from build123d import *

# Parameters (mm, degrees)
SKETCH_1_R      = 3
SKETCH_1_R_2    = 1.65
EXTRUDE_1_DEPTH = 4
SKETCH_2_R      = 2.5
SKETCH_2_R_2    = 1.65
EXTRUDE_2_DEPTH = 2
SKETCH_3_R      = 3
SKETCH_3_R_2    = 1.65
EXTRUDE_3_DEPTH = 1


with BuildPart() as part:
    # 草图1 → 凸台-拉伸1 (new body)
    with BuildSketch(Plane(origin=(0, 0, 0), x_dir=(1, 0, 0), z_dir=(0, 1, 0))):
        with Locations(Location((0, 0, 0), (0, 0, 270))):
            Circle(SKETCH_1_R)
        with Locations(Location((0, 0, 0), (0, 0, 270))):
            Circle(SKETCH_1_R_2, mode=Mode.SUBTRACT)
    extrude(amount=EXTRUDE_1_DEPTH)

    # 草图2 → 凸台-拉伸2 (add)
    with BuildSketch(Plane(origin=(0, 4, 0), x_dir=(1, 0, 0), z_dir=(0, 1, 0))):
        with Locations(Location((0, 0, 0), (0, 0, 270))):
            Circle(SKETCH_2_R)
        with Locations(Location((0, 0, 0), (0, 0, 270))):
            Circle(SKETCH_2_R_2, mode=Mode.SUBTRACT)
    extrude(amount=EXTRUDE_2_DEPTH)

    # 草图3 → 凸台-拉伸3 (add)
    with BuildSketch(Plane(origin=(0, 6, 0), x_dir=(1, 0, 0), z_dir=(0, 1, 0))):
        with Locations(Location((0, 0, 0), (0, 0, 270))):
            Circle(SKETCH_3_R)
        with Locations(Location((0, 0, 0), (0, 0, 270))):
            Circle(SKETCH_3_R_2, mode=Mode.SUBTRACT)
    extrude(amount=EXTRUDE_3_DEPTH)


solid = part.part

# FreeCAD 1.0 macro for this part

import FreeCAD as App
import Part
import Sketcher
from FreeCAD import Vector

doc = App.newDocument("Part")
body = doc.addObject("PartDesign::Body", "Body")

# Sketch on XZ plane
sketch1 = body.newObject("Sketcher::SketchObject", "Sketch")
sketch1.AttachmentSupport = (doc.getObject("XZ_Plane"), [""])
sketch1.MapMode = "FlatFace"
sketch1.addGeometry(Part.Circle(Vector(0, 0, 0), Vector(0, 0, 1), 3), False)
sketch1.addGeometry(Part.Circle(Vector(0, 0, 0), Vector(0, 0, 1), 1.6), False)
sketch1.addConstraint(Sketcher.Constraint("Coincident", 0, 3, -1, 1))
sketch1.addConstraint(Sketcher.Constraint("Coincident", 1, 3, -1, 1))
sketch1.addConstraint(Sketcher.Constraint("Diameter", 0, 6.0))
sketch1.addConstraint(Sketcher.Constraint("Diameter", 1, 3.3))
pad1 = body.newObject("PartDesign::Pad", "Pad")
pad1.Profile = sketch1
pad1.Length = 4
pad1.Reversed = True

# Sketch on XZ plane
sketch2 = body.newObject("Sketcher::SketchObject", "Sketch001")
sketch2.AttachmentSupport = (doc.getObject("XZ_Plane"), [""])
sketch2.MapMode = "FlatFace"
sketch2.AttachmentOffset = App.Placement(Vector(0, 0, -4), App.Rotation())
sketch2.addGeometry(Part.Circle(Vector(0, 0, 0), Vector(0, 0, 1), 2.5), False)
sketch2.addGeometry(Part.Circle(Vector(0, 0, 0), Vector(0, 0, 1), 1.6), False)
sketch2.addConstraint(Sketcher.Constraint("Coincident", 0, 3, -1, 1))
sketch2.addConstraint(Sketcher.Constraint("Coincident", 1, 3, -1, 1))
sketch2.addConstraint(Sketcher.Constraint("Diameter", 0, 5.0))
sketch2.addConstraint(Sketcher.Constraint("Diameter", 1, 3.3))
pad2 = body.newObject("PartDesign::Pad", "Pad001")
pad2.Profile = sketch2
pad2.Length = 2
pad2.Reversed = True

# Sketch on XZ plane
sketch3 = body.newObject("Sketcher::SketchObject", "Sketch002")
sketch3.AttachmentSupport = (doc.getObject("XZ_Plane"), [""])
sketch3.MapMode = "FlatFace"
sketch3.AttachmentOffset = App.Placement(Vector(0, 0, -6), App.Rotation())
sketch3.addGeometry(Part.Circle(Vector(0, 0, 0), Vector(0, 0, 1), 3), False)
sketch3.addGeometry(Part.Circle(Vector(0, 0, 0), Vector(0, 0, 1), 1.6), False)
sketch3.addConstraint(Sketcher.Constraint("Coincident", 0, 3, -1, 1))
sketch3.addConstraint(Sketcher.Constraint("Coincident", 1, 3, -1, 1))
sketch3.addConstraint(Sketcher.Constraint("Diameter", 0, 6.0))
sketch3.addConstraint(Sketcher.Constraint("Diameter", 1, 3.3))
pad3 = body.newObject("PartDesign::Pad", "Pad002")
pad3.Profile = sketch3
pad3.Length = 1
pad3.Reversed = True

doc.recompute()
